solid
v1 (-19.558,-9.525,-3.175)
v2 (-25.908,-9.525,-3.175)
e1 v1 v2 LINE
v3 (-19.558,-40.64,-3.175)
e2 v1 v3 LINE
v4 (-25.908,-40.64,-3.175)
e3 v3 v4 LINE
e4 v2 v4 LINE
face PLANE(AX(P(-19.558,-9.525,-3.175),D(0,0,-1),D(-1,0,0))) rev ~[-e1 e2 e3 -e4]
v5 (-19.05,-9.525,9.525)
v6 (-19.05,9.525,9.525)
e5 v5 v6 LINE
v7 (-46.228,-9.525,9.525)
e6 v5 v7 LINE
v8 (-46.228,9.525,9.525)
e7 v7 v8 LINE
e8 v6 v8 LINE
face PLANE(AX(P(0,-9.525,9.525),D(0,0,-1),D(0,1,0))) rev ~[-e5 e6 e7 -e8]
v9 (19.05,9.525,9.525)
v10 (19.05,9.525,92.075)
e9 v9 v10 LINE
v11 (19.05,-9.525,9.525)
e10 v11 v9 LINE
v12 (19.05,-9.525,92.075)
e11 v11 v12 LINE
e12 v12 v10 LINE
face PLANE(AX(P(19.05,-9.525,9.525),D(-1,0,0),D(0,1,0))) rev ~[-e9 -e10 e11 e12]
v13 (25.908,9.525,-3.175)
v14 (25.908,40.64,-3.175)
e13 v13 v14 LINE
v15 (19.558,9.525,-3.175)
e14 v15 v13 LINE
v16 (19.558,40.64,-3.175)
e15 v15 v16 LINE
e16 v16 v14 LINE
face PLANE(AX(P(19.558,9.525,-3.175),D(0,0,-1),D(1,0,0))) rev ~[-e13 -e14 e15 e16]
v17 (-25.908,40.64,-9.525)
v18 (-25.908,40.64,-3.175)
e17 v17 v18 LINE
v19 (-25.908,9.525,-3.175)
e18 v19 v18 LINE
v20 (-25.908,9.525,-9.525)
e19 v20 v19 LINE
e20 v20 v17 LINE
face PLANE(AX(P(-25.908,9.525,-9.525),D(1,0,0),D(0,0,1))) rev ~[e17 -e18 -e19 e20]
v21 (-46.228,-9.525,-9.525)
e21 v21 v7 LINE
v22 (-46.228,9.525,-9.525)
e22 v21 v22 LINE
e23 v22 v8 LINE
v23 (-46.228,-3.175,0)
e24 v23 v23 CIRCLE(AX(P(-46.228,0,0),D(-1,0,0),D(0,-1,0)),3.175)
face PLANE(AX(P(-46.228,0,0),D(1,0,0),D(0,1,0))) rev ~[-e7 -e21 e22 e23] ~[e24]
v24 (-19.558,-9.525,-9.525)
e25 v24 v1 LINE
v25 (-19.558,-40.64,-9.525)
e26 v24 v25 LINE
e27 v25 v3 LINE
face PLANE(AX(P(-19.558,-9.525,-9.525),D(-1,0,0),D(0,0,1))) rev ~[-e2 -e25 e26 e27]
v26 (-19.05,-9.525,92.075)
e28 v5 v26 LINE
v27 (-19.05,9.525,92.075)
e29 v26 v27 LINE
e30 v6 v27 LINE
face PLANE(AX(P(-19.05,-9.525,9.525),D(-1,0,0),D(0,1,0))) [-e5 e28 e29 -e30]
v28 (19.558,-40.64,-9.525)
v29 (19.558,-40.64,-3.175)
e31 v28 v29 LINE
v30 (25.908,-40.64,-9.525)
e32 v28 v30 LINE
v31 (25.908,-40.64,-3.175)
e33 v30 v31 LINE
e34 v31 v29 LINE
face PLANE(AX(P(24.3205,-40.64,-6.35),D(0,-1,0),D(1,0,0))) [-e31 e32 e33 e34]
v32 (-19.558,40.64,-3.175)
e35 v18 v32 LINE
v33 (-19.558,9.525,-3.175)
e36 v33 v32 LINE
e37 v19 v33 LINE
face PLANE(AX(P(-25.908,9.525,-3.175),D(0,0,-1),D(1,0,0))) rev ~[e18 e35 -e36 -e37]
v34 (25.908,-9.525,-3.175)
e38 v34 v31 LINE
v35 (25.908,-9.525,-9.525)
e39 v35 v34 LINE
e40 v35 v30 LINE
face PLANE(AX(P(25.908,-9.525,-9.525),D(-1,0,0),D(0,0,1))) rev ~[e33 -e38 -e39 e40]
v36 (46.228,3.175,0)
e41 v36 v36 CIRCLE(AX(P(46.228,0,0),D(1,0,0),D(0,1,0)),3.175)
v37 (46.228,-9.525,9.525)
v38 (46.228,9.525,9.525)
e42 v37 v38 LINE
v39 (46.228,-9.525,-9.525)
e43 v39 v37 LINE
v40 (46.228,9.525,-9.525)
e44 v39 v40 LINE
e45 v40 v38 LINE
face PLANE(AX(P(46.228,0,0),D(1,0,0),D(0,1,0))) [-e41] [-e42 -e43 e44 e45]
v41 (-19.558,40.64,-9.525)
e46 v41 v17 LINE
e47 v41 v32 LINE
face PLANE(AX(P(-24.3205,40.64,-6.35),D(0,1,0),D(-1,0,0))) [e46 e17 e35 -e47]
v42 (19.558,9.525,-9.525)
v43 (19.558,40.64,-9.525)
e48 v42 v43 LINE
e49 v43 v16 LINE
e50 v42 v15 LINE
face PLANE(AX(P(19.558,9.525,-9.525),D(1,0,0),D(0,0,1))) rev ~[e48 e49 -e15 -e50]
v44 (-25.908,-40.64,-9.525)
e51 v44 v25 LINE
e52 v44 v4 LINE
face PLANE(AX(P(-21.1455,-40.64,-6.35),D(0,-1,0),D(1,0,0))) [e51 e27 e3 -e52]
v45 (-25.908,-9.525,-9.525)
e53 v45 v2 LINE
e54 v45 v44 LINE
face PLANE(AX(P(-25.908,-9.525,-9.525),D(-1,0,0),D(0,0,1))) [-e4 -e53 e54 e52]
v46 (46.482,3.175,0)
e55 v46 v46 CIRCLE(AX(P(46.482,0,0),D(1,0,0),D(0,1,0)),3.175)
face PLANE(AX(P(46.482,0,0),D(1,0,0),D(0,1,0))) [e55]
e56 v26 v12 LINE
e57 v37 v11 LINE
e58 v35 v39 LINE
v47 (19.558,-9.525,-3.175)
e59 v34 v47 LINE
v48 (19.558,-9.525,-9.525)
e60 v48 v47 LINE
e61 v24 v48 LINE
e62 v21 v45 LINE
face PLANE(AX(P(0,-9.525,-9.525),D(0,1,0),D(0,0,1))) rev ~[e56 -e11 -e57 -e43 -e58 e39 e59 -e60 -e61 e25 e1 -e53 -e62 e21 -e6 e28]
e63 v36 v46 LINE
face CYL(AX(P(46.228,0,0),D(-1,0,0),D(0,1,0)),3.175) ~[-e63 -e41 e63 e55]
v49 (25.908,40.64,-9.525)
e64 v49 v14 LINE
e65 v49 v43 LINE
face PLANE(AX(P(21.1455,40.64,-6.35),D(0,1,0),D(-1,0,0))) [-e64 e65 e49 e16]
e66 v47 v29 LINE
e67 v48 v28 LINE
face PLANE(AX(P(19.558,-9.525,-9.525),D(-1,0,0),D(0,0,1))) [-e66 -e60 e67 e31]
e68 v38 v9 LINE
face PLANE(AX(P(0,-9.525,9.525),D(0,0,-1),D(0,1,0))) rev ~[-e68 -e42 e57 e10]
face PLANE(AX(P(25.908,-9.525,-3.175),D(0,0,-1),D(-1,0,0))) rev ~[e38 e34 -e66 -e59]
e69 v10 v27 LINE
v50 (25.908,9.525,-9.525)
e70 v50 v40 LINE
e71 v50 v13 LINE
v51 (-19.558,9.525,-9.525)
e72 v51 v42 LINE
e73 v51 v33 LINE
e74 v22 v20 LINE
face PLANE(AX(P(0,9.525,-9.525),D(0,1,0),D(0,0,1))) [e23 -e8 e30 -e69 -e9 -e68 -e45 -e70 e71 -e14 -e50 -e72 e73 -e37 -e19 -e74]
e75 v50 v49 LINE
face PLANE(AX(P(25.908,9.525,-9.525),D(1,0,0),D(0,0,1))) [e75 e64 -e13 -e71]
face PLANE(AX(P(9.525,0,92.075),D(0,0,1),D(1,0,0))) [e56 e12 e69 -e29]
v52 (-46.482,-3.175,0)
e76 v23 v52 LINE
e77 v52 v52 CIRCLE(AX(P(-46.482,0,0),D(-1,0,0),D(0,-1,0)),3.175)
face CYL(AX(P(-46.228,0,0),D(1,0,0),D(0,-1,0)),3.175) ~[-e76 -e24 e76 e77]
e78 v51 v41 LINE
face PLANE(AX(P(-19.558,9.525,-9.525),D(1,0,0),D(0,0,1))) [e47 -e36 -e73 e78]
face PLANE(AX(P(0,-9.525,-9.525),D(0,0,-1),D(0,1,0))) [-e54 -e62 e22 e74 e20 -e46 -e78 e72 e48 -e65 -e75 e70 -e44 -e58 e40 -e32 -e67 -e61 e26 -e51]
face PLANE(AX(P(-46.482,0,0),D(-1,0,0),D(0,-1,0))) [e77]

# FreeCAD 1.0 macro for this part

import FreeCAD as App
import Part
import Sketcher
from FreeCAD import Vector
Q = App.Units.Quantity


def add_polygon(sketch, points):
    """Adds a closed chain of lines whose ends are joined by coincident constraints."""
    first, n = sketch.GeometryCount, len(points)
    for a, b in zip(points, points[1:] + points[:1]):
        sketch.addGeometry(Part.LineSegment(App.Vector(*a, 0), App.Vector(*b, 0)), False)
    for i in range(n):
        sketch.addConstraint(Sketcher.Constraint("Coincident", first + i, 2, first + (i + 1) % n, 1))

doc = App.newDocument("Part")
body = doc.addObject("PartDesign::Body", "Body")

# Sketch on YZ plane
sketch1 = body.newObject("Sketcher::SketchObject", "Sketch")
sketch1.AttachmentSupport = (doc.getObject("YZ_Plane"), [""])
sketch1.MapMode = "FlatFace"
add_polygon(sketch1, [(-9.525, 9.525), (-9.525, -9.525), (9.525, -9.525), (9.525, 9.525)])  # lines 0-3
sketch1.addConstraint([
    Sketcher.Constraint("Vertical", 0),
    Sketcher.Constraint("Horizontal", 1),
    Sketcher.Constraint("Vertical", 2),
    Sketcher.Constraint("Horizontal", 3),
    Sketcher.Constraint("Symmetric", 0, 2, 2, 2, -1, 1),
    Sketcher.Constraint("Equal", 3, 0),
    Sketcher.Constraint("DistanceX", 1, 1, 1, 2, Q("0.75 in")),
])
pad1 = body.newObject("PartDesign::Pad", "Pad")
pad1.Profile = sketch1
pad1.Length = Q("3.64 in")
pad1.Midplane = True

# Sketch on XZ plane
sketch2 = body.newObject("Sketcher::SketchObject", "Sketch001")
sketch2.AttachmentSupport = (doc.getObject("XZ_Plane"), [""])
sketch2.MapMode = "FlatFace"
sketch2.AttachmentOffset = App.Placement(Vector(0, 0, -0.375 * 25.4), App.Rotation())
add_polygon(sketch2, [(19.558, -9.525), (19.558, -3.175), (25.908, -3.175), (25.908, -9.525)])  # lines 0-3
add_polygon(sketch2, [(-25.908, -9.525), (-25.908, -3.175), (-19.558, -3.175), (-19.558, -9.525)])  # lines 4-7
sketch2.addConstraint([
    Sketcher.Constraint("Vertical", 0),
    Sketcher.Constraint("Horizontal", 1),
    Sketcher.Constraint("Vertical", 2),
    Sketcher.Constraint("Horizontal", 3),
    Sketcher.Constraint("Vertical", 4),
    Sketcher.Constraint("Horizontal", 5),
    Sketcher.Constraint("Vertical", 6),
    Sketcher.Constraint("Horizontal", 7),
    Sketcher.Constraint("Symmetric", 1, 2, 4, 2, -2),
    Sketcher.Constraint("Symmetric", 3, 2, 6, 2, -2),
    Sketcher.Constraint("Equal", 7, 0),
    Sketcher.Constraint("DistanceX", 1, 1, 1, 2, Q("0.25 in")),
    Sketcher.Constraint("DistanceX", -1, 1, 0, 2, Q("0.77 in")),
    Sketcher.Constraint("DistanceY", 0, 2, -1, 1, Q("0.125 in")),
])
pad2 = body.newObject("PartDesign::Pad", "Pad001")
pad2.Profile = sketch2
pad2.Length = Q("1.225 in")
pad2.Reversed = True

# Sketch on XZ plane
sketch3 = body.newObject("Sketcher::SketchObject", "Sketch002")
sketch3.AttachmentSupport = (doc.getObject("XZ_Plane"), [""])
sketch3.MapMode = "FlatFace"
sketch3.AttachmentOffset = App.Placement(Vector(0, 0, 0.375 * 25.4), App.Rotation())
add_polygon(sketch3, [(-19.558, -9.525), (-19.558, -3.175), (-25.908, -3.175), (-25.908, -9.525)])  # lines 0-3
add_polygon(sketch3, [(25.908, -9.525), (25.908, -3.175), (19.558, -3.175), (19.558, -9.525)])  # lines 4-7
sketch3.addConstraint([
    Sketcher.Constraint("Vertical", 0),
    Sketcher.Constraint("Horizontal", 1),
    Sketcher.Constraint("Vertical", 2),
    Sketcher.Constraint("Horizontal", 3),
    Sketcher.Constraint("Vertical", 4),
    Sketcher.Constraint("Horizontal", 5),
    Sketcher.Constraint("Vertical", 6),
    Sketcher.Constraint("Horizontal", 7),
    Sketcher.Constraint("Symmetric", 1, 2, 4, 2, -2),
    Sketcher.Constraint("Symmetric", 3, 2, 6, 2, -2),
    Sketcher.Constraint("Equal", 7, 0),
    Sketcher.Constraint("DistanceX", 1, 2, 1, 1, Q("0.25 in")),
    Sketcher.Constraint("DistanceX", 0, 2, -1, 1, Q("0.77 in")),
    Sketcher.Constraint("DistanceY", 0, 2, -1, 1, Q("0.125 in")),
])
pad3 = body.newObject("PartDesign::Pad", "Pad002")
pad3.Profile = sketch3
pad3.Length = Q("1.225 in")

# Sketch on XY plane
sketch4 = body.newObject("Sketcher::SketchObject", "Sketch003")
sketch4.AttachmentSupport = (doc.getObject("XY_Plane"), [""])
sketch4.MapMode = "FlatFace"
sketch4.AttachmentOffset = App.Placement(Vector(0, 0, 0.375 * 25.4), App.Rotation())
add_polygon(sketch4, [(19.05, -9.525), (19.05, 9.525), (-19.05, 9.525), (-19.05, -9.525)])  # lines 0-3
sketch4.addConstraint([
    Sketcher.Constraint("Vertical", 0),
    Sketcher.Constraint("Horizontal", 1),
    Sketcher.Constraint("Vertical", 2),
    Sketcher.Constraint("Horizontal", 3),
    Sketcher.Constraint("Symmetric", 0, 2, 2, 2, -1, 1),
    Sketcher.Constraint("DistanceX", 1, 2, 1, 1, Q("1.5 in")),
    Sketcher.Constraint("DistanceY", 0, 1, 0, 2, Q("0.75 in")),
])
pad4 = body.newObject("PartDesign::Pad", "Pad003")
pad4.Profile = sketch4
pad4.Length = Q("3.25 in")

# Sketch on YZ plane
sketch5 = body.newObject("Sketcher::SketchObject", "Sketch004")
sketch5.AttachmentSupport = (doc.getObject("YZ_Plane"), [""])
sketch5.MapMode = "FlatFace"
sketch5.AttachmentOffset = App.Placement(Vector(0, 0, -1.82 * 25.4), App.Rotation())
sketch5.addGeometry(Part.Circle(Vector(0, 0, 0), Vector(0, 0, 1), 3.175), False)
sketch5.addConstraint([
    Sketcher.Constraint("Coincident", 0, 3, -1, 1),
    Sketcher.Constraint("Diameter", 0, Q("0.25 in")),
])
pad5 = body.newObject("PartDesign::Pad", "Pad004")
pad5.Profile = sketch5
pad5.Length = Q("0.01 in")
pad5.Reversed = True

# Sketch on YZ plane
sketch6 = body.newObject("Sketcher::SketchObject", "Sketch005")
sketch6.AttachmentSupport = (doc.getObject("YZ_Plane"), [""])
sketch6.MapMode = "FlatFace"
sketch6.AttachmentOffset = App.Placement(Vector(0, 0, 1.82 * 25.4), App.Rotation())
sketch6.addGeometry(Part.Circle(Vector(0, 0, 0), Vector(0, 0, 1), 3.175), False)
sketch6.addConstraint([
    Sketcher.Constraint("Coincident", 0, 3, -1, 1),
    Sketcher.Constraint("Diameter", 0, Q("0.25 in")),
])
pad6 = body.newObject("PartDesign::Pad", "Pad005")
pad6.Profile = sketch6
pad6.Length = Q("0.01 in")

doc.recompute()
